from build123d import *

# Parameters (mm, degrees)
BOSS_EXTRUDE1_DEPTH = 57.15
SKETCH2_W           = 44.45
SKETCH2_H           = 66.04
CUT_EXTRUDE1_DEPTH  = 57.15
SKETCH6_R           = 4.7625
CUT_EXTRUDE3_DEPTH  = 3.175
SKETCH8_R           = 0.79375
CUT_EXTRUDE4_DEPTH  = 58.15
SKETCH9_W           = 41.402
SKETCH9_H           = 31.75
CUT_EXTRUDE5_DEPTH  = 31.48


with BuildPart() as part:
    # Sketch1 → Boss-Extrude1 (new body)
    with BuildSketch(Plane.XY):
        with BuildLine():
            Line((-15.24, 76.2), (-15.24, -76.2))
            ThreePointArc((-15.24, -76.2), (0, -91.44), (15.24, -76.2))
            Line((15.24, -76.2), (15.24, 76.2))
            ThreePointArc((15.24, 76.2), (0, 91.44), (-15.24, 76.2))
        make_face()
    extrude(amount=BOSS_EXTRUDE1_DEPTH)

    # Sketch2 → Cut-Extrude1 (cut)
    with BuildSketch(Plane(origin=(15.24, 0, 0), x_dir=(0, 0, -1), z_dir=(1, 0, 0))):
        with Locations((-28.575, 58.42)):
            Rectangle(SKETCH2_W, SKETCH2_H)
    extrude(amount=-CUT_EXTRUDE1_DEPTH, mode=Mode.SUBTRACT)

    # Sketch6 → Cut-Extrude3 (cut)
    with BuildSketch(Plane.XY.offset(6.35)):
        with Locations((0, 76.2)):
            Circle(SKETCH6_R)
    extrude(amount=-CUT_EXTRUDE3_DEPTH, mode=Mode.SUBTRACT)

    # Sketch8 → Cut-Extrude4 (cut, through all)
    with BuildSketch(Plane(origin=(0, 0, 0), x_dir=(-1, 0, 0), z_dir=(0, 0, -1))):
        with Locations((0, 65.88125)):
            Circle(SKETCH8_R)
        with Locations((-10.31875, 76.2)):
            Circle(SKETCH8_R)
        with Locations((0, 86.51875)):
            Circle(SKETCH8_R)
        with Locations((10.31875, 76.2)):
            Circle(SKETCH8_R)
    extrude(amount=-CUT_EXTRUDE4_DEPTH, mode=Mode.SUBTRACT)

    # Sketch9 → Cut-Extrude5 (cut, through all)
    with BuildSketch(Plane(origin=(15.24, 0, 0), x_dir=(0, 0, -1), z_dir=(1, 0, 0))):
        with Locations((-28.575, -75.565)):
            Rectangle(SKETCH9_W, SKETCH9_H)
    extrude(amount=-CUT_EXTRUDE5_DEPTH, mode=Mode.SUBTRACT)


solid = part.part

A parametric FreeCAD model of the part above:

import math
import FreeCAD as App
import Part
import Sketcher

V = App.Vector
Q = App.Units.Quantity


def add_polygon(sketch, points):
    """Adds a closed chain of lines whose ends are joined by coincident constraints."""
    first, n = sketch.GeometryCount, len(points)
    for a, b in zip(points, points[1:] + points[:1]):
        sketch.addGeometry(Part.LineSegment(App.Vector(*a, 0), App.Vector(*b, 0)), False)
    for i in range(n):
        sketch.addConstraint(Sketcher.Constraint("Coincident", first + i, 2, first + (i + 1) % n, 1))

doc = App.newDocument("Part")
body = doc.addObject("PartDesign::Body", "Body")

sketch1 = body.newObject("Sketcher::SketchObject", "Sketch")
sketch1.AttachmentSupport = (doc.getObject("XY_Plane"), [""])
sketch1.MapMode = "FlatFace"
sketch1.addGeometry([
    Part.LineSegment(V(-15, 76, 0), V(-15, -76, 0)),
    Part.ArcOfCircle(Part.Circle(V(0, -76, 0), V(0, 0, 1), 15), math.radians(180), math.radians(360)),
    Part.LineSegment(V(15, -76, 0), V(15, 76, 0)),
    Part.ArcOfCircle(Part.Circle(V(0, 76, 0), V(0, 0, 1), 15), math.radians(0), math.radians(180)),
], False)
sketch1.addConstraint([
    Sketcher.Constraint("Tangent", 0, 2, 1, 1),
    Sketcher.Constraint("Tangent", 1, 2, 2, 1),
    Sketcher.Constraint("Tangent", 2, 2, 3, 1),
    Sketcher.Constraint("Tangent", 3, 2, 0, 1),
    Sketcher.Constraint("Vertical", 0),
    Sketcher.Constraint("Vertical", 2),
    Sketcher.Constraint("Symmetric", 1, 3, 3, 3, -1, 1),
    Sketcher.Constraint("Radius", 1, Q("0.6 in")),
    Sketcher.Constraint("DistanceY", 0, 2, 0, 1, Q("6 in")),
])
pad1 = body.newObject("PartDesign::Pad", "Pad")
pad1.Profile = sketch1
pad1.Length = Q("2.25 in")

sketch2 = body.newObject("Sketcher::SketchObject", "Sketch001")
sketch2.AttachmentSupport = (doc.getObject("YZ_Plane"), [""])
sketch2.MapMode = "FlatFace"
sketch2.AttachmentOffset = App.Placement(V(0, 0, 0.6 * 25.4), App.Rotation())
add_polygon(sketch2, [(91, 51), (25, 51), (25, 6), (91, 6)])
sketch2.addConstraint([
    Sketcher.Constraint("Horizontal", 0),
    Sketcher.Constraint("Vertical", 1),
    Sketcher.Constraint("Horizontal", 2),
    Sketcher.Constraint("Vertical", 3),
    Sketcher.Constraint("DistanceX", 0, 2, 0, 1, Q("2.6 in")),
    Sketcher.Constraint("DistanceX", -1, 1, 0, 2, Q("1 in")),
    Sketcher.Constraint("DistanceY", -1, 1, 0, 2, Q("2 in")),
    Sketcher.Constraint("DistanceY", 1, 2, 1, 1, Q("1.75 in")),
])
pocket1 = body.newObject("PartDesign::Pocket", "Pocket")
pocket1.Profile = sketch2
pocket1.Length = Q("2.25 in")

sketch3 = body.newObject("Sketcher::SketchObject", "Sketch002")
sketch3.AttachmentSupport = (doc.getObject("XY_Plane"), [""])
sketch3.MapMode = "FlatFace"
sketch3.AttachmentOffset = App.Placement(V(0, 0, 0.25 * 25.4), App.Rotation())
sketch3.addGeometry(Part.Circle(V(0, 76.2, 0), V(0, 0, 1), 4.8), False)
sketch3.addConstraint([
    Sketcher.Constraint("PointOnObject", 0, 3, -2),
    Sketcher.Constraint("Diameter", 0, Q("0.375 in")),
    Sketcher.Constraint("DistanceY", -1, 1, 0, 3, Q("3 in")),
])
pocket2 = body.newObject("PartDesign::Pocket", "Pocket001")
pocket2.Profile = sketch3
pocket2.Length = Q("0.125 in")

sketch4 = body.newObject("Sketcher::SketchObject", "Sketch003")
sketch4.AttachmentSupport = (doc.getObject("XY_Plane"), [""])
sketch4.MapMode = "FlatFace"
sketch4.addGeometry([
    Part.Circle(V(0, 65.9, 0), V(0, 0, 1), 0.8),
    Part.Circle(V(10.3, 76.2, 0), V(0, 0, 1), 0.8),
    Part.Circle(V(0, 86.5, 0), V(0, 0, 1), 0.8),
    Part.Circle(V(-10.3, 76.2, 0), V(0, 0, 1), 0.8),
], False)
sketch4.addConstraint([
    Sketcher.Constraint("Equal", 0, 1),
    Sketcher.Constraint("Equal", 1, 2),
    Sketcher.Constraint("Equal", 2, 3),
    Sketcher.Constraint("Symmetric", 1, 3, 3, 3, -2),
    Sketcher.Constraint("PointOnObject", 0, 3, -2),
    Sketcher.Constraint("PointOnObject", 2, 3, -2),
    Sketcher.Constraint("Diameter", 0, Q("0.0625 in")),
    Sketcher.Constraint("DistanceY", -1, 1, 1, 3, Q("3 in")),
    Sketcher.Constraint("DistanceY", -1, 1, 0, 3, Q("2.59375 in")),
    Sketcher.Constraint("DistanceX", -1, 1, 1, 3, Q("0.40625 in")),
    Sketcher.Constraint("DistanceY", -1, 1, 2, 3, Q("3.40625 in")),
])
pocket3 = body.newObject("PartDesign::Pocket", "Pocket002")
pocket3.Profile = sketch4
pocket3.Type = "ThroughAll"
pocket3.Reversed = True

sketch5 = body.newObject("Sketcher::SketchObject", "Sketch004")
sketch5.AttachmentSupport = (doc.getObject("YZ_Plane"), [""])
sketch5.MapMode = "FlatFace"
sketch5.AttachmentOffset = App.Placement(V(0, 0, 0.6 * 25.4), App.Rotation())
add_polygon(sketch5, [(-60, 49), (-91, 49), (-91, 8), (-60, 8)])
sketch5.addConstraint([
    Sketcher.Constraint("Horizontal", 0),
    Sketcher.Constraint("Vertical", 1),
    Sketcher.Constraint("Horizontal", 2),
    Sketcher.Constraint("Vertical", 3),
    Sketcher.Constraint("DistanceX", 0, 2, 0, 1, Q("1.25 in")),
    Sketcher.Constraint("DistanceY", 1, 2, 1, 1, Q("1.63 in")),
    Sketcher.Constraint("DistanceX", 0, 2, -1, 1, Q("3.6 in")),
    Sketcher.Constraint("DistanceY", -1, 1, 0, 2, Q("1.94 in")),
])
pocket4 = body.newObject("PartDesign::Pocket", "Pocket003")
pocket4.Profile = sketch5
pocket4.Type = "ThroughAll"

doc.recompute()
